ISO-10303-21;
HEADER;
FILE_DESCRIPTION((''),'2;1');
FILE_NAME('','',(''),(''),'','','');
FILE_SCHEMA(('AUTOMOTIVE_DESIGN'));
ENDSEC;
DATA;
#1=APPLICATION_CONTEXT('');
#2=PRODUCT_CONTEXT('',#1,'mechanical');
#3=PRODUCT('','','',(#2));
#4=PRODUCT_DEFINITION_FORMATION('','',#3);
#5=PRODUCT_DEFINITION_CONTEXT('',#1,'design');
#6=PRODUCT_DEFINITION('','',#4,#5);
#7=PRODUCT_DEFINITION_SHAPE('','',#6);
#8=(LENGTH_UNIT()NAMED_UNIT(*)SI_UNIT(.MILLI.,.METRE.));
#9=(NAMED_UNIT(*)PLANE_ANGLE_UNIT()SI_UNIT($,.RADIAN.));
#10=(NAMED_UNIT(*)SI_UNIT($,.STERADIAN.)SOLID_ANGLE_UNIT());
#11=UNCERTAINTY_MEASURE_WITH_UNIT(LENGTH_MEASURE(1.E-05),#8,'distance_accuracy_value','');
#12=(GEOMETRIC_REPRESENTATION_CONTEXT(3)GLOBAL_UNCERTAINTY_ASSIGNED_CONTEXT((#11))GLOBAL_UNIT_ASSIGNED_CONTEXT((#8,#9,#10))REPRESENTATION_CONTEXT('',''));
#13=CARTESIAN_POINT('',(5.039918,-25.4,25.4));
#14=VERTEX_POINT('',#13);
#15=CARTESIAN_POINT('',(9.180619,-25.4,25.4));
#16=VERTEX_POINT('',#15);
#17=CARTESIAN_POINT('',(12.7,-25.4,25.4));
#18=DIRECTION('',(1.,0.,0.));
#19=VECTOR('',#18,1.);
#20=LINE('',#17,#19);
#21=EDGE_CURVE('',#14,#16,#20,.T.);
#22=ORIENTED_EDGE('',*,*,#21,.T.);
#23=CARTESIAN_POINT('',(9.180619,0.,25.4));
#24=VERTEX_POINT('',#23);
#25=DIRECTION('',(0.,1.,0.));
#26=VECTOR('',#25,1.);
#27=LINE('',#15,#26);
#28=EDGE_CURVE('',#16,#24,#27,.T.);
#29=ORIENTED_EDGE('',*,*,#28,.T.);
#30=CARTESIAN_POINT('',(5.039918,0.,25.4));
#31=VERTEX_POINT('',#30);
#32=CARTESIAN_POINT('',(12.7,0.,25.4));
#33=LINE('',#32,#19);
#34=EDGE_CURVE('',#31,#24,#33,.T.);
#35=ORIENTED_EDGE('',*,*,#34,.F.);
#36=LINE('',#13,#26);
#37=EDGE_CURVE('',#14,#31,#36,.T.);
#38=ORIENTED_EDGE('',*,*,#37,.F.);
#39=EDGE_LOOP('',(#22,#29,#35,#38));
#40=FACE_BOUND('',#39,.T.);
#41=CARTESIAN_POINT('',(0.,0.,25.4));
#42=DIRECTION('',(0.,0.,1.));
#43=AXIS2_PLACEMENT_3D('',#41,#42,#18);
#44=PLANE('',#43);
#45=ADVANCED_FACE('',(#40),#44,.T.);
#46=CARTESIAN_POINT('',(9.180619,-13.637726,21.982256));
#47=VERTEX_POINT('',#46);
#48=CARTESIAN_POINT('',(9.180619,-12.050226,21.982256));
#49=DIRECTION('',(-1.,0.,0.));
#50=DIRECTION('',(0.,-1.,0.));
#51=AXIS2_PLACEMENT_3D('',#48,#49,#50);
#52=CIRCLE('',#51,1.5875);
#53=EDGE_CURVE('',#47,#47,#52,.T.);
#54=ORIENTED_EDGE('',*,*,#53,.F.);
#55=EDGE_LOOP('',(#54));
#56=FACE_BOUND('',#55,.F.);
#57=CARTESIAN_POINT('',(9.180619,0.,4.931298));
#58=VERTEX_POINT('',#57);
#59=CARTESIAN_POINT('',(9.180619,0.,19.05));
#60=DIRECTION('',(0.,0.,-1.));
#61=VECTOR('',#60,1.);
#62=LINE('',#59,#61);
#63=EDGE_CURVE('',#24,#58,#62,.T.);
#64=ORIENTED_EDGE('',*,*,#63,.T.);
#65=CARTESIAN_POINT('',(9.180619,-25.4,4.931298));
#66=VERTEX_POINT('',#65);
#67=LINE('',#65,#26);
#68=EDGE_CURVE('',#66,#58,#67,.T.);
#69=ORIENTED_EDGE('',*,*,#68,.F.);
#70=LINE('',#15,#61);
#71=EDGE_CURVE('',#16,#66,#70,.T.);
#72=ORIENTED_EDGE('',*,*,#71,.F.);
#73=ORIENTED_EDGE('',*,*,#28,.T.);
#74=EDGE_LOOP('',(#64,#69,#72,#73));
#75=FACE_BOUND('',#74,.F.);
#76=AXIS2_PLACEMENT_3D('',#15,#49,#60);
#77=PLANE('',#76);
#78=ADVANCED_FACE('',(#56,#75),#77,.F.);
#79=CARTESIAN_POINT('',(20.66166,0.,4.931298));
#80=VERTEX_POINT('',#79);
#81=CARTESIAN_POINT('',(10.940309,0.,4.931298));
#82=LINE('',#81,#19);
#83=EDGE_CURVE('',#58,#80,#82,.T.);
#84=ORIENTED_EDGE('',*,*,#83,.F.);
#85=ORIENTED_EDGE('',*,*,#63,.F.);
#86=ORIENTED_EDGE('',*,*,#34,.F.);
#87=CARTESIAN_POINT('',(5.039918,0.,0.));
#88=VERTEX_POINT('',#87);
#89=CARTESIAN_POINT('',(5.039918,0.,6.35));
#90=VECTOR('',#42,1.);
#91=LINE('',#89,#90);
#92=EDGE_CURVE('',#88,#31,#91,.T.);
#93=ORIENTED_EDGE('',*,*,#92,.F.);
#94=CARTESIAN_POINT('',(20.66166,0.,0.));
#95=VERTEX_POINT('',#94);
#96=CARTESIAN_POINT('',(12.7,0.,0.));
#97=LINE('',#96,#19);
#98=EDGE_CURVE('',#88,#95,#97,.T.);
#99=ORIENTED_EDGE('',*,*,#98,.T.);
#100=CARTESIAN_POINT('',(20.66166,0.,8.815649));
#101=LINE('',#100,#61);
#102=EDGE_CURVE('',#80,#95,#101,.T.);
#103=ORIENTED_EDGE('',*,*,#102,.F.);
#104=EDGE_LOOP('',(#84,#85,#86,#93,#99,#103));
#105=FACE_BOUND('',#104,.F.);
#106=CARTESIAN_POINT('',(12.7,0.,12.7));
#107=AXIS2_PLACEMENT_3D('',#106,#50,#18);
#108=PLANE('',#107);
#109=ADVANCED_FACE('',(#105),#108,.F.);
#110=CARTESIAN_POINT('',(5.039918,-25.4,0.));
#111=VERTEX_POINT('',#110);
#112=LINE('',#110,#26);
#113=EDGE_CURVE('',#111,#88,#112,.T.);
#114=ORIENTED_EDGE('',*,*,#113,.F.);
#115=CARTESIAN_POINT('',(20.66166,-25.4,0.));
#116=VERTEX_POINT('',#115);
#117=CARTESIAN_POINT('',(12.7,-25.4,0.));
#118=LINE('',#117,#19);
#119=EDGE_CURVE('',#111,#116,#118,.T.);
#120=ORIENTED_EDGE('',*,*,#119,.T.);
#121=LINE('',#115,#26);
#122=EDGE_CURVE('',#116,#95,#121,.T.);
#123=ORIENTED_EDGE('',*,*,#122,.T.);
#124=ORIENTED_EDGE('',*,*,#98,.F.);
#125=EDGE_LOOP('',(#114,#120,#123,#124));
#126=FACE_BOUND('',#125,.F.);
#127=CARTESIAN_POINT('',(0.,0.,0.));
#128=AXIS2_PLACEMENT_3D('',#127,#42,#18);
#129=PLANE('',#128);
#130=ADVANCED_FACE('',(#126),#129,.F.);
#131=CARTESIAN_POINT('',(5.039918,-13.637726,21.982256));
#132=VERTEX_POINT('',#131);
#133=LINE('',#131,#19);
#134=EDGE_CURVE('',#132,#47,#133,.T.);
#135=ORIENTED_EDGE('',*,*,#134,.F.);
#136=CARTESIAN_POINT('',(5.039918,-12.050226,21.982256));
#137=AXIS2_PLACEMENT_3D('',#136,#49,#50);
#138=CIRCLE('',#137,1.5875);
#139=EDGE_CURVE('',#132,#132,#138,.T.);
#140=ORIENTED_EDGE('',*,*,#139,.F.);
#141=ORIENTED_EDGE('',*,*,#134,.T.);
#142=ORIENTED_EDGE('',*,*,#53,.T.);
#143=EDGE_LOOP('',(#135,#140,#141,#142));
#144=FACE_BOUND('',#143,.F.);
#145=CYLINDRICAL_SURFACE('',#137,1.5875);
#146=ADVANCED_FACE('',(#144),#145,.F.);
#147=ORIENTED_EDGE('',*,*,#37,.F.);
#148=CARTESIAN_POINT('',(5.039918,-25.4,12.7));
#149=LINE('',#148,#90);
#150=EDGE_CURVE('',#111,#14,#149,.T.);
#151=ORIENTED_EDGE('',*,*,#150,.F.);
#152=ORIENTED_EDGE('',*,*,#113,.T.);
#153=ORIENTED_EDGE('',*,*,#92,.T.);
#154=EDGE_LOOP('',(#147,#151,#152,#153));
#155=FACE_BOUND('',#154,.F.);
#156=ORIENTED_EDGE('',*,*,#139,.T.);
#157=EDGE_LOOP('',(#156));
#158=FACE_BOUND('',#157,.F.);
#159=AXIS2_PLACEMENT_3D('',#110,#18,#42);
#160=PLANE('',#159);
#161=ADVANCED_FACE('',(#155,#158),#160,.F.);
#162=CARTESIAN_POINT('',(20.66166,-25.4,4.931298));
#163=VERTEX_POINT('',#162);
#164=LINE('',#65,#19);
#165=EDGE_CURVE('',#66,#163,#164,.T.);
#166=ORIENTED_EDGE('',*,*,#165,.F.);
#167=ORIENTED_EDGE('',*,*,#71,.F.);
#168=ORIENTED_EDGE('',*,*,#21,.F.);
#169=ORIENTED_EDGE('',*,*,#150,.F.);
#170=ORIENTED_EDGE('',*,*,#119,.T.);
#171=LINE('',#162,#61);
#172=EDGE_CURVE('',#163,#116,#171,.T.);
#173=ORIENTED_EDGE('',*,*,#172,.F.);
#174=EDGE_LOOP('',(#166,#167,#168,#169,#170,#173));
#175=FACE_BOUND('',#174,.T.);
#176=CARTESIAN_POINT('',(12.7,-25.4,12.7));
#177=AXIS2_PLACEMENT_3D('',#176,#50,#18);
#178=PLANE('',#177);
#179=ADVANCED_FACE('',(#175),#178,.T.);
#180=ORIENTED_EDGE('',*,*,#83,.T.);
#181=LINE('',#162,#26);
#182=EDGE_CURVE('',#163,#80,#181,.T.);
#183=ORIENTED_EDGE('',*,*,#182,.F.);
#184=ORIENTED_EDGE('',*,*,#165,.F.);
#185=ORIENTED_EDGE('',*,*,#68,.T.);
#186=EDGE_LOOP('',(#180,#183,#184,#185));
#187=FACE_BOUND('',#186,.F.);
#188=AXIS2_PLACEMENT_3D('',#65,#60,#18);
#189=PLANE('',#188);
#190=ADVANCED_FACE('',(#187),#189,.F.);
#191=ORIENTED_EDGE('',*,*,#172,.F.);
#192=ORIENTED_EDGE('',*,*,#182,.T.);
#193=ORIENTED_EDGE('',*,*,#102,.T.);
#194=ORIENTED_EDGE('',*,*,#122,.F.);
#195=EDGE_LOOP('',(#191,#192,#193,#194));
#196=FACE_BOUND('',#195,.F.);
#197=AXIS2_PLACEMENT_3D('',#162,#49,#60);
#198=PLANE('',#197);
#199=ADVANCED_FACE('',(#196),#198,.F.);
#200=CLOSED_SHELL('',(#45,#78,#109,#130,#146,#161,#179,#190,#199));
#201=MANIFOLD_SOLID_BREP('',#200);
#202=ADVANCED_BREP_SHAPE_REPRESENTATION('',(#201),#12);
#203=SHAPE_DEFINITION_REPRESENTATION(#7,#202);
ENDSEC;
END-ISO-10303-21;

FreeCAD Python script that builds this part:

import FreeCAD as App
import Part
import Sketcher
from FreeCAD import Vector
Q = App.Units.Quantity


def add_polygon(sketch, points):
    """Adds a closed chain of lines whose ends are joined by coincident constraints."""
    first, n = sketch.GeometryCount, len(points)
    for a, b in zip(points, points[1:] + points[:1]):
        sketch.addGeometry(Part.LineSegment(App.Vector(*a, 0), App.Vector(*b, 0)), False)
    for i in range(n):
        sketch.addConstraint(Sketcher.Constraint("Coincident", first + i, 2, first + (i + 1) % n, 1))

doc = App.newDocument("Part")
body = doc.addObject("PartDesign::Body", "Body")

# Sketch on XZ plane
sketch1 = body.newObject("Sketcher::SketchObject", "Sketch")
sketch1.AttachmentSupport = (doc.getObject("XZ_Plane"), [""])
sketch1.MapMode = "FlatFace"
add_polygon(sketch1, [(0, 25), (0, 0), (25, 0), (25, 25)])  # lines 0-3
sketch1.addConstraint([
    Sketcher.Constraint("Vertical", 0),
    Sketcher.Constraint("Horizontal", 1),
    Sketcher.Constraint("Vertical", 2),
    Sketcher.Constraint("Horizontal", 3),
    Sketcher.Constraint("Coincident", 0, 2, -1, 1),
    Sketcher.Constraint("Equal", 3, 0),
    Sketcher.Constraint("DistanceX", 1, 1, 1, 2, Q("1 in")),
])
pad1 = body.newObject("PartDesign::Pad", "Pad")
pad1.Profile = sketch1
pad1.Length = Q("1 in")

# Sketch on XZ plane
sketch2 = body.newObject("Sketcher::SketchObject", "Sketch001")
sketch2.AttachmentSupport = (doc.getObject("XZ_Plane"), [""])
sketch2.MapMode = "FlatFace"
sketch2.AttachmentOffset = App.Placement(Vector(0, 0, 1 * 25.4), App.Rotation())
add_polygon(sketch2, [(25.4, 25.4), (9.2, 25.4), (9.2, 4.9), (20.7, 4.9), (20.7, 0), (25.4, 0)])  # lines 0-5
add_polygon(sketch2, [(0, 25.4), (0, 0), (5, 0), (5, 25.4)])  # lines 6-9
sketch2.addConstraint([
    Sketcher.Constraint("Horizontal", 0),
    Sketcher.Constraint("Vertical", 1),
    Sketcher.Constraint("Horizontal", 2),
    Sketcher.Constraint("Vertical", 3),
    Sketcher.Constraint("Horizontal", 4),
    Sketcher.Constraint("Vertical", 5),
    Sketcher.Constraint("Vertical", 6),
    Sketcher.Constraint("Horizontal", 7),
    Sketcher.Constraint("Vertical", 8),
    Sketcher.Constraint("Horizontal", 9),
    Sketcher.Constraint("Coincident", 6, 2, -1, 1),
    Sketcher.Constraint("PointOnObject", 3, 2, -1),
    Sketcher.Constraint("Horizontal", 5, 2, 8, 2),
    Sketcher.Constraint("DistanceY", 5, 1, 5, 2, Q("1 in")),
    Sketcher.Constraint("DistanceX", -1, 1, 4, 2, Q("1 in")),
    Sketcher.Constraint("DistanceX", 0, 2, 0, 1, Q("16.219381 mm")),
    Sketcher.Constraint("DistanceX", 2, 1, 2, 2, Q("11.481041 mm")),
    Sketcher.Constraint("DistanceX", 7, 2, 1, 2, Q("4.140701 mm")),
    Sketcher.Constraint("DistanceY", 1, 2, 1, 1, Q("20.468702 mm")),
])
pocket1 = body.newObject("PartDesign::Pocket", "Pocket")
pocket1.Profile = sketch2
pocket1.Length = Q("1.5 in")

# Sketch on YZ plane
sketch3 = body.newObject("Sketcher::SketchObject", "Sketch002")
sketch3.AttachmentSupport = (doc.getObject("YZ_Plane"), [""])
sketch3.MapMode = "FlatFace"
sketch3.AttachmentOffset = App.Placement(Vector(0, 0, 5.039918), App.Rotation())
sketch3.addGeometry(Part.Circle(Vector(-12.1, 22, 0), Vector(0, 0, 1), 1.6), False)
sketch3.addConstraint([
    Sketcher.Constraint("Diameter", 0, Q("0.125 in")),
    Sketcher.Constraint("DistanceX", 0, 3, -1, 1, Q("12.050226 mm")),
    Sketcher.Constraint("DistanceY", -1, 1, 0, 3, Q("21.982256 mm")),
])
pocket2 = body.newObject("PartDesign::Pocket", "Pocket001")
pocket2.Profile = sketch3
pocket2.Length = Q("0.5 in")
pocket2.Reversed = True

doc.recompute()
